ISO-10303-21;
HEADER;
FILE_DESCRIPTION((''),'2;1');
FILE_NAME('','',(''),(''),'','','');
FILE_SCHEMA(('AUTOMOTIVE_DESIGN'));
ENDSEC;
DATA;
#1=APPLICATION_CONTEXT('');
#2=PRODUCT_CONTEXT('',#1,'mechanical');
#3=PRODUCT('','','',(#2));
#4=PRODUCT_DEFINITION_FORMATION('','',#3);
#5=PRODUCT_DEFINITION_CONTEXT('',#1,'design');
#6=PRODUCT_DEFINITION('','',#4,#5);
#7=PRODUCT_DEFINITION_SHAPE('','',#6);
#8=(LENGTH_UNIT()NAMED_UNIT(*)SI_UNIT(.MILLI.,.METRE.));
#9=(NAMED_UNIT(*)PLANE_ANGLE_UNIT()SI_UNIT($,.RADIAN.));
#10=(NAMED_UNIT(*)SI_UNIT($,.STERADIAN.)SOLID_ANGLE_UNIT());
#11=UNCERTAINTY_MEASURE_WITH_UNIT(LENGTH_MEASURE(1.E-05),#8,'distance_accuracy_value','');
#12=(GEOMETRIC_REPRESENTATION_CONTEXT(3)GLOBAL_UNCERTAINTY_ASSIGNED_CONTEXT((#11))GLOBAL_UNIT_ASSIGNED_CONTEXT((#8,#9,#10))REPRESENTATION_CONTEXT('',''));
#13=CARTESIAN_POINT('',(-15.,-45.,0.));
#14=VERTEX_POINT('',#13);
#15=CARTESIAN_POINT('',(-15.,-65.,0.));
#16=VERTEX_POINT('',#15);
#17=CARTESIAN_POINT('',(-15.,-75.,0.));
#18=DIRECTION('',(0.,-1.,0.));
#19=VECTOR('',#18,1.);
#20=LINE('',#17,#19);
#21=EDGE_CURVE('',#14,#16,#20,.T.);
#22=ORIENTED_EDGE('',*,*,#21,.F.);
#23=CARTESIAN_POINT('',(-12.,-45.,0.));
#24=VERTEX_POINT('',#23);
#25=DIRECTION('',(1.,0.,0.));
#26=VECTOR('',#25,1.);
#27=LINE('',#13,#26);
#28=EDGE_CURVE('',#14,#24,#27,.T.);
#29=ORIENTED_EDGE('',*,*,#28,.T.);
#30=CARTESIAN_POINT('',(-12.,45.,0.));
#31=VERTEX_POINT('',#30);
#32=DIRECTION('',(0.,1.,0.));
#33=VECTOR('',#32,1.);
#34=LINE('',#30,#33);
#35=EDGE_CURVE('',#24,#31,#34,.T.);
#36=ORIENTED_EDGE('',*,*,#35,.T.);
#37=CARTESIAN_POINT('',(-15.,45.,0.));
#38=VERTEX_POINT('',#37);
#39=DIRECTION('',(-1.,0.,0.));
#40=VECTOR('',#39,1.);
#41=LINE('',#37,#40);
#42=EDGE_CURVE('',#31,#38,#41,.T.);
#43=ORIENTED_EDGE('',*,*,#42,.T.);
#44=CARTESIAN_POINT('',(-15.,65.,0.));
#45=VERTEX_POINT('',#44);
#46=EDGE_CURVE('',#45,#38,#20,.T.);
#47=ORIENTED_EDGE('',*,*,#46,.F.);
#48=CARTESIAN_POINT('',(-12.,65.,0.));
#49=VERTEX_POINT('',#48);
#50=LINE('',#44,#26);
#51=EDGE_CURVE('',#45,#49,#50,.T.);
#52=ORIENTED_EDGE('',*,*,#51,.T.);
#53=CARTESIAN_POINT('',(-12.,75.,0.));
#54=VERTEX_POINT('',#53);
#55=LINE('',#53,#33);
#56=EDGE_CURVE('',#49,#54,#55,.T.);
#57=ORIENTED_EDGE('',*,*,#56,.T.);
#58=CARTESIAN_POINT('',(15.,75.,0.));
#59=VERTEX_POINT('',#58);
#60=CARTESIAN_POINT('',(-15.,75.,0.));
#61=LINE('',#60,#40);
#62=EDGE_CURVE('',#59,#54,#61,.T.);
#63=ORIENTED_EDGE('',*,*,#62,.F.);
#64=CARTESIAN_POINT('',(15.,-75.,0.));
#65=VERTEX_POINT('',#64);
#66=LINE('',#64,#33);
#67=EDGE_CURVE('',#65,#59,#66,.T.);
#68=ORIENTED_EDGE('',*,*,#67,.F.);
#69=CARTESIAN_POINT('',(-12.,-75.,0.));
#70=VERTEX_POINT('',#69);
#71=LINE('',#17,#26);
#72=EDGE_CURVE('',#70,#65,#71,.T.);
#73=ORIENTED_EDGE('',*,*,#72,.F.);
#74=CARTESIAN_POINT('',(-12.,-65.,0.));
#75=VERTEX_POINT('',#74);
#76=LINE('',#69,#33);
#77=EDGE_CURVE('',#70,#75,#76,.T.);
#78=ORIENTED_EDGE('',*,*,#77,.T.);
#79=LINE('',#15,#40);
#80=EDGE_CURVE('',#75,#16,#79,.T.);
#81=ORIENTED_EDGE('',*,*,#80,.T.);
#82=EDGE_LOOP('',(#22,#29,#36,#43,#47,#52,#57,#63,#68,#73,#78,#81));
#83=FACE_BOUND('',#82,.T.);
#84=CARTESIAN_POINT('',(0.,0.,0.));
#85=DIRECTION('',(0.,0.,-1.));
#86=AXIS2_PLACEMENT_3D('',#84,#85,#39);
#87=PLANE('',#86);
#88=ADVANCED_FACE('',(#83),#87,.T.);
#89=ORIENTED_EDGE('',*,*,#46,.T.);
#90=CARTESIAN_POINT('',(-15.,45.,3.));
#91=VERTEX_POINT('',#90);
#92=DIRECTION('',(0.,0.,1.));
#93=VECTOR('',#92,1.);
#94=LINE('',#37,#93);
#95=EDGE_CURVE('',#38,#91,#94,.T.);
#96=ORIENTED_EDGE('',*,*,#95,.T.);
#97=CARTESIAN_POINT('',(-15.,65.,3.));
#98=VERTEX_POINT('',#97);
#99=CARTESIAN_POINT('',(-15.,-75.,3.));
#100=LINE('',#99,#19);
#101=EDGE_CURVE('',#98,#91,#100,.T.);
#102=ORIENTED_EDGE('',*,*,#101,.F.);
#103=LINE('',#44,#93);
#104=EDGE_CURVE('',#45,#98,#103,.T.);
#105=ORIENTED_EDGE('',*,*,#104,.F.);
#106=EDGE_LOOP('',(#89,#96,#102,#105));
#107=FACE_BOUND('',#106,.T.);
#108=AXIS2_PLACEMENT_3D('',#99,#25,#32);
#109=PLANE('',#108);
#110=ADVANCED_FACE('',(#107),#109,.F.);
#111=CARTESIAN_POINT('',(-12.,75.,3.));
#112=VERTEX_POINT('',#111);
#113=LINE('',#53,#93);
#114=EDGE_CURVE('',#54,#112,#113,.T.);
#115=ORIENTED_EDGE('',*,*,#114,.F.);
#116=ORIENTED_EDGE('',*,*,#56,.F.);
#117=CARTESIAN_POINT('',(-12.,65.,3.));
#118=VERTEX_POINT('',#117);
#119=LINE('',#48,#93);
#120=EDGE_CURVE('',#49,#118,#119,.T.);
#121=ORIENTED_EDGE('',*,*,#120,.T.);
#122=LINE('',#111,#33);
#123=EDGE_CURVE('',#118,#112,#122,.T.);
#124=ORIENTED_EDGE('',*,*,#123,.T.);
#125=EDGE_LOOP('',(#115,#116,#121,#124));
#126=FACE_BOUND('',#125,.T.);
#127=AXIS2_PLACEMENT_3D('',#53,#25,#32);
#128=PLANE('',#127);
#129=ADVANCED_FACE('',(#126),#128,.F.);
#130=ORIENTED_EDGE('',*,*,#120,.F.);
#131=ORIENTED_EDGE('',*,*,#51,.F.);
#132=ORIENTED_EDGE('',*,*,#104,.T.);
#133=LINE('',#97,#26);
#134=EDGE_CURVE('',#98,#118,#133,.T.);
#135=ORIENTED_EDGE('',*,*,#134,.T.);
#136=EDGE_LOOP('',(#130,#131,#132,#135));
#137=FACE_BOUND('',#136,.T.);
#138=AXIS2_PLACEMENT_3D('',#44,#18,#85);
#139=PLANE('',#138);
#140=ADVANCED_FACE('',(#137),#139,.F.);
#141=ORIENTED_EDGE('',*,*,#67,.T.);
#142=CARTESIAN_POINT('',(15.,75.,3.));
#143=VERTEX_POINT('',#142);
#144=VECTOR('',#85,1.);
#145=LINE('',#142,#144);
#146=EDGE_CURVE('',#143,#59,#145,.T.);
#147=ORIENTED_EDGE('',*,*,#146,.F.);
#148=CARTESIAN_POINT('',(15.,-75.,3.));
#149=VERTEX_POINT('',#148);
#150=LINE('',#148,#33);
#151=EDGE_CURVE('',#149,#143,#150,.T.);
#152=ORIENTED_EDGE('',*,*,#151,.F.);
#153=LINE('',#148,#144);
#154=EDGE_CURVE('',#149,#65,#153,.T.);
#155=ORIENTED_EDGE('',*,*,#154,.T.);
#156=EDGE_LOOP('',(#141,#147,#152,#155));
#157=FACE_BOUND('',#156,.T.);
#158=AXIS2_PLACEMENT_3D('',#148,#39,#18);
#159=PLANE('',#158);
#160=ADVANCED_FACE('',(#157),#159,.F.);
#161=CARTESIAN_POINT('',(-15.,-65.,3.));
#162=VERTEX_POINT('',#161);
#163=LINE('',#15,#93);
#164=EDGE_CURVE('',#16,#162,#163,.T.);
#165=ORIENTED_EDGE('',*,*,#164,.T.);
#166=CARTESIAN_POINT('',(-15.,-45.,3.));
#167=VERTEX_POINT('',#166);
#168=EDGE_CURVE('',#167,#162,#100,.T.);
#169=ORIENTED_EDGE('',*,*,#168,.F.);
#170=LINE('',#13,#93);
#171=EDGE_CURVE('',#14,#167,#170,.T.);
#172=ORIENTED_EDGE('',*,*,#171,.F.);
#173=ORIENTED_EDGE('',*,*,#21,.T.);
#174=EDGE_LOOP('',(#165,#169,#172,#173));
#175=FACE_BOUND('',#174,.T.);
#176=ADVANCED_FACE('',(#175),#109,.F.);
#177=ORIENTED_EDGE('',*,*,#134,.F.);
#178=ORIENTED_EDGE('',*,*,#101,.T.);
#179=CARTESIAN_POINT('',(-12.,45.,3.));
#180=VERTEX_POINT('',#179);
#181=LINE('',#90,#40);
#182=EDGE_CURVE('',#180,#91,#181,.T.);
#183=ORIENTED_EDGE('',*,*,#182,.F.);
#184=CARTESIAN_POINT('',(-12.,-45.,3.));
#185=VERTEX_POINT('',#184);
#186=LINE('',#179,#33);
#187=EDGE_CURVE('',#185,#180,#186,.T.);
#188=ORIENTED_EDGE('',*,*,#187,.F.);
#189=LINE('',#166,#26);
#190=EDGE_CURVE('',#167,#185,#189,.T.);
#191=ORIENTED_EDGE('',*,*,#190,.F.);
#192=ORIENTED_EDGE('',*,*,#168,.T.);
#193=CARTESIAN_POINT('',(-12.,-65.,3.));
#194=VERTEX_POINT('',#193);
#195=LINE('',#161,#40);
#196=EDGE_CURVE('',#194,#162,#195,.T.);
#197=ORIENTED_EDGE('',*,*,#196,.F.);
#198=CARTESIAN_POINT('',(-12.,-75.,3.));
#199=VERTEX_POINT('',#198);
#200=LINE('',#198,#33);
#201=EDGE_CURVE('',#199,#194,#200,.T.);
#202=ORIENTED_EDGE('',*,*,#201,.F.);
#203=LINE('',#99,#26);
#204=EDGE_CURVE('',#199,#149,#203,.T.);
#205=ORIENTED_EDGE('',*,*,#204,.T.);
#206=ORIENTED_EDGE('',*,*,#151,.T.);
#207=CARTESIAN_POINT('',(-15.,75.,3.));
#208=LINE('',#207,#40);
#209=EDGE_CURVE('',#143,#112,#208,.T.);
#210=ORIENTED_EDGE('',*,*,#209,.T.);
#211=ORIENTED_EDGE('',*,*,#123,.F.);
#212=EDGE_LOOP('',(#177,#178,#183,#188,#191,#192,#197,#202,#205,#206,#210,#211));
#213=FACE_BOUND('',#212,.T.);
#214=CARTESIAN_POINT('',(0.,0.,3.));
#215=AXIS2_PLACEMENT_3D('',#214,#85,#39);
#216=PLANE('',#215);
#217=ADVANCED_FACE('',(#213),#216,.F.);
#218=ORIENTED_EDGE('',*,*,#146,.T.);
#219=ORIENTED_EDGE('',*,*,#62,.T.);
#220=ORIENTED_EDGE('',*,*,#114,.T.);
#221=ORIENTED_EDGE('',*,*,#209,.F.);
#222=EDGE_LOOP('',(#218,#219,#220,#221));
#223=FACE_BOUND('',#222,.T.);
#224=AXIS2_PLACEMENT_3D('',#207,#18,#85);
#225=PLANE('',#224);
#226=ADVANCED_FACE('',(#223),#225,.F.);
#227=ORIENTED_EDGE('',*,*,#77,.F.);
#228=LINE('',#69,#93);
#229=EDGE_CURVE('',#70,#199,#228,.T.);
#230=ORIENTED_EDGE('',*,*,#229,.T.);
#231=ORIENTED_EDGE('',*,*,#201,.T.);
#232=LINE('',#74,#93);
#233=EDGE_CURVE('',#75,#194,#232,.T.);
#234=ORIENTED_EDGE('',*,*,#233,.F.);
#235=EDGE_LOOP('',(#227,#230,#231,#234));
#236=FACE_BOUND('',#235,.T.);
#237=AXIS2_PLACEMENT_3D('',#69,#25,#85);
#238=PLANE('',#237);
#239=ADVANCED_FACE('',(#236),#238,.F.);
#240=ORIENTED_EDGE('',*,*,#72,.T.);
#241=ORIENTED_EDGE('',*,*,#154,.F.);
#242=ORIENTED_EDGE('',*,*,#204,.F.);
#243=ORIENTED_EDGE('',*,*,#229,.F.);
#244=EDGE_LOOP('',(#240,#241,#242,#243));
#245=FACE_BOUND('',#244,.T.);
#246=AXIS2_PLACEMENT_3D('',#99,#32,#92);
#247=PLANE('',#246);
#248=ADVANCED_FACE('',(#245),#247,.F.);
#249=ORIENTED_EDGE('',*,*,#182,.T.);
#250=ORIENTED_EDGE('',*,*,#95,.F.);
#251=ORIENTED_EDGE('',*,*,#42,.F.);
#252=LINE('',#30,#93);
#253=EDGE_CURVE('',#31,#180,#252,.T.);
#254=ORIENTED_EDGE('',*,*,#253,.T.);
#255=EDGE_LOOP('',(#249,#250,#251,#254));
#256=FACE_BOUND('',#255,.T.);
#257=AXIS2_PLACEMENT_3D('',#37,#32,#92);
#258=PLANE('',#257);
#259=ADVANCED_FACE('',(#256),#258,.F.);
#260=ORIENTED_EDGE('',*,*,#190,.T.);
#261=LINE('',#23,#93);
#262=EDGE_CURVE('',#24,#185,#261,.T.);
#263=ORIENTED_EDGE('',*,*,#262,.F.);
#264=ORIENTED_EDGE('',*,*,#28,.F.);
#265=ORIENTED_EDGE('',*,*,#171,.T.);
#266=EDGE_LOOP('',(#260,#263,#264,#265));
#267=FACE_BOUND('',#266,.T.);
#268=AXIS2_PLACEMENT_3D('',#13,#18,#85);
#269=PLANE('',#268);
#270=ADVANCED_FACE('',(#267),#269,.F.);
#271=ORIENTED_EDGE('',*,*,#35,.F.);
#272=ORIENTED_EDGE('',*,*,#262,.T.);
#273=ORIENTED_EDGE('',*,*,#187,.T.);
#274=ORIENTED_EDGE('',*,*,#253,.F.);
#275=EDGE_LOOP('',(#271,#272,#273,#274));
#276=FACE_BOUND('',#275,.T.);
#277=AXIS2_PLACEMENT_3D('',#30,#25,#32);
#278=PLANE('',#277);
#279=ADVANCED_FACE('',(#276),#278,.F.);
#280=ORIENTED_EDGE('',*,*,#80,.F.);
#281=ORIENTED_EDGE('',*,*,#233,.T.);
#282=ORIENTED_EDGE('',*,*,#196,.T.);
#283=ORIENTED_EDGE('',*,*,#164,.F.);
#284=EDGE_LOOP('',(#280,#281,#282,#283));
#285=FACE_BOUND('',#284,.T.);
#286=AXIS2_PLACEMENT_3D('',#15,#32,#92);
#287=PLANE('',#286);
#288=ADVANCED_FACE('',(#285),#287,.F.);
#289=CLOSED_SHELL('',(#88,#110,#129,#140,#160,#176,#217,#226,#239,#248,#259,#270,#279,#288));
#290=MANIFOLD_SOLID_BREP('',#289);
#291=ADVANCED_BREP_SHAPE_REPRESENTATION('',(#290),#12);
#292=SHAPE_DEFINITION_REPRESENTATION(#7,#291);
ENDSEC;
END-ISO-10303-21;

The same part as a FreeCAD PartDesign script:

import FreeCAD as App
import Part
import Sketcher
from FreeCAD import Vector
Q = App.Units.Quantity

doc = App.newDocument("Part")
body = doc.addObject("PartDesign::Body", "Body")

sketch1 = body.newObject("Sketcher::SketchObject", "Sketch")
sketch1.AttachmentSupport = (doc.getObject("XY_Plane"), [""])
sketch1.MapMode = "FlatFace"
sketch1.addGeometry([
    Part.LineSegment(Vector(-15, 75, 0), Vector(-15, -75, 0)),
    Part.LineSegment(Vector(-15, -75, 0), Vector(15, -75, 0)),
    Part.LineSegment(Vector(15, -75, 0), Vector(15, 75, 0)),
    Part.LineSegment(Vector(15, 75, 0), Vector(-15, 75, 0)),
], False)
sketch1.addConstraint([
    Sketcher.Constraint("Coincident", 0, 2, 1, 1),
    Sketcher.Constraint("Coincident", 1, 2, 2, 1),
    Sketcher.Constraint("Coincident", 2, 2, 3, 1),
    Sketcher.Constraint("Coincident", 3, 2, 0, 1),
    Sketcher.Constraint("Vertical", 0),
    Sketcher.Constraint("Horizontal", 1),
    Sketcher.Constraint("Vertical", 2),
    Sketcher.Constraint("Horizontal", 3),
    Sketcher.Constraint("Symmetric", 0, 2, 2, 2, -1, 1),
    Sketcher.Constraint("DistanceX", 1, 1, 1, 2, Q("30 mm")),
    Sketcher.Constraint("DistanceY", 0, 2, 0, 1, Q("150 mm")),
])
pad1 = body.newObject("PartDesign::Pad", "Pad")
pad1.Profile = sketch1
pad1.Length = 3

sketch2 = body.newObject("Sketcher::SketchObject", "Sketch001")
sketch2.AttachmentSupport = (doc.getObject("XY_Plane"), [""])
sketch2.MapMode = "FlatFace"
sketch2.AttachmentOffset = App.Placement(Vector(0, 0, 3), App.Rotation())
sketch2.addGeometry([
    Part.LineSegment(Vector(-15, 75, 0), Vector(-15, 65, 0)),
    Part.LineSegment(Vector(-15, 65, 0), Vector(-12, 65, 0)),
    Part.LineSegment(Vector(-12, 65, 0), Vector(-12, 75, 0)),
    Part.LineSegment(Vector(-12, 75, 0), Vector(-15, 75, 0)),
    Part.LineSegment(Vector(-15, -65, 0), Vector(-15, -75, 0)),
    Part.LineSegment(Vector(-15, -75, 0), Vector(-12, -75, 0)),
    Part.LineSegment(Vector(-12, -75, 0), Vector(-12, -65, 0)),
    Part.LineSegment(Vector(-12, -65, 0), Vector(-15, -65, 0)),
    Part.LineSegment(Vector(-15, 45, 0), Vector(-15, -45, 0)),
    Part.LineSegment(Vector(-15, -45, 0), Vector(-12, -45, 0)),
    Part.LineSegment(Vector(-12, -45, 0), Vector(-12, 45, 0)),
    Part.LineSegment(Vector(-12, 45, 0), Vector(-15, 45, 0)),
], False)
sketch2.addConstraint([
    Sketcher.Constraint("Coincident", 0, 2, 1, 1),
    Sketcher.Constraint("Coincident", 1, 2, 2, 1),
    Sketcher.Constraint("Coincident", 2, 2, 3, 1),
    Sketcher.Constraint("Coincident", 3, 2, 0, 1),
    Sketcher.Constraint("Coincident", 4, 2, 5, 1),
    Sketcher.Constraint("Coincident", 5, 2, 6, 1),
    Sketcher.Constraint("Coincident", 6, 2, 7, 1),
    Sketcher.Constraint("Coincident", 7, 2, 4, 1),
    Sketcher.Constraint("Coincident", 8, 2, 9, 1),
    Sketcher.Constraint("Coincident", 9, 2, 10, 1),
    Sketcher.Constraint("Coincident", 10, 2, 11, 1),
    Sketcher.Constraint("Coincident", 11, 2, 8, 1),
    Sketcher.Constraint("Vertical", 0),
    Sketcher.Constraint("Horizontal", 1),
    Sketcher.Constraint("Vertical", 2),
    Sketcher.Constraint("Horizontal", 3),
    Sketcher.Constraint("Vertical", 4),
    Sketcher.Constraint("Horizontal", 5),
    Sketcher.Constraint("Vertical", 6),
    Sketcher.Constraint("Horizontal", 7),
    Sketcher.Constraint("Vertical", 8),
    Sketcher.Constraint("Horizontal", 9),
    Sketcher.Constraint("Vertical", 10),
    Sketcher.Constraint("Horizontal", 11),
    Sketcher.Constraint("Symmetric", 3, 2, 4, 2, -1),
    Sketcher.Constraint("Symmetric", 1, 2, 6, 2, -1),
    Sketcher.Constraint("Vertical", 7, 2, 8, 2),
    Sketcher.Constraint("Vertical", 6, 2, 9, 2),
    Sketcher.Constraint("DistanceX", 1, 1, 1, 2, Q("3 mm")),
    Sketcher.Constraint("DistanceY", 0, 2, 0, 1, Q("10 mm")),
    Sketcher.Constraint("DistanceY", 8, 2, 8, 1, Q("90 mm")),
    Sketcher.Constraint("DistanceX", 0, 2, -1, 1, Q("15 mm")),
    Sketcher.Constraint("DistanceY", -1, 1, 0, 2, Q("65 mm")),
    Sketcher.Constraint("DistanceY", 8, 2, -1, 1, Q("45 mm")),
])
pocket1 = body.newObject("PartDesign::Pocket", "Pocket")
pocket1.Profile = sketch2
pocket1.Length = 3

doc.recompute()
